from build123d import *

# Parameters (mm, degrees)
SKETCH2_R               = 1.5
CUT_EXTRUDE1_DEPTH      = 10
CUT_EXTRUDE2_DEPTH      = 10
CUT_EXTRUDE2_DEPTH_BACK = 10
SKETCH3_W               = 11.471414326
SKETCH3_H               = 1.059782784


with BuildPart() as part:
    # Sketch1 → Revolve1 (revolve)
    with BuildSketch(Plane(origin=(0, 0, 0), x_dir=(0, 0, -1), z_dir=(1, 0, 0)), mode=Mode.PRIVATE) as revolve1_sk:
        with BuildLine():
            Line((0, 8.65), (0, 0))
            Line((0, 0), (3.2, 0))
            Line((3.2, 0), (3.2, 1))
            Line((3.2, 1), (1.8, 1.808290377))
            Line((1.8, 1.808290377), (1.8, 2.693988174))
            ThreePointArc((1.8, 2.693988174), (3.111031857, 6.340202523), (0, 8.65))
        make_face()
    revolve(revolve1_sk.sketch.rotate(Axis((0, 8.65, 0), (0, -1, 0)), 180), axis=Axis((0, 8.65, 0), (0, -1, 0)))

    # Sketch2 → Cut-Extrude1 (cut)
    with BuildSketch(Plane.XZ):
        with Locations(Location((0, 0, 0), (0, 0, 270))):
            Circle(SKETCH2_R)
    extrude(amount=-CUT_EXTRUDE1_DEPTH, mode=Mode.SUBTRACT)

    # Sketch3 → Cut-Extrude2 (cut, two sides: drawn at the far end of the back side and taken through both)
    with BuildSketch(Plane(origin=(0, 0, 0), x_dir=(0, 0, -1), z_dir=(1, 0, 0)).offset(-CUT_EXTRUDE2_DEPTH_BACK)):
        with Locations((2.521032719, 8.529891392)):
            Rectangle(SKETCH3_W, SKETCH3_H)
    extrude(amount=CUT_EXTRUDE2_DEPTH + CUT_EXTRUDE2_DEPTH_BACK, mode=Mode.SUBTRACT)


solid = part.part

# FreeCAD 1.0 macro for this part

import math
import FreeCAD as App
import Part
import Sketcher
Q = App.Units.Quantity

doc = App.newDocument("Part")
params = doc.addObject("Spreadsheet::Sheet", "Params")
for row, (alias, value) in enumerate([
    ("sketch1_width", "1 mm"),
    ("sketch1_radius", "3.25 mm"),
    ("sketch1_height", "3.2 mm"),
    ("sketch1_width2", "8.65 mm"),
    ("revolution_angle", "360 deg"),
    ("sketch2_diameter", "3 mm"),
    ("pocket1_length", "10 mm"),
], start=1):
    params.set(f"A{row}", alias)
    params.set(f"B{row}", "=" + value)
    params.setAlias(f"B{row}", alias)

body = doc.addObject("PartDesign::Body", "Body")

# Sketch on YZ plane
sketch1 = body.newObject("Sketcher::SketchObject", "Sketch")
sketch1.AttachmentSupport = (doc.getObject("YZ_Plane"), [""])
sketch1.MapMode = "FlatFace"
sketch1.addGeometry([
    Part.LineSegment(App.Vector(8.7, 0, 0), App.Vector(0, 0, 0)),  # 0
    Part.LineSegment(App.Vector(0, 0, 0), App.Vector(0, -3.2, 0)),  # 1
    Part.LineSegment(App.Vector(0, -3.2, 0), App.Vector(1, -3.2, 0)),  # 2
    Part.LineSegment(App.Vector(1, -3.2, 0), App.Vector(1.8, -1.8, 0)),  # 3
    Part.LineSegment(App.Vector(1.8, -1.8, 0), App.Vector(2.7, -1.8, 0)),  # 4
    Part.ArcOfCircle(Part.Circle(App.Vector(5.4, 0, 0), App.Vector(0, 0, 1), 3.2), math.radians(-146), math.radians(0)),  # 5
], False)
sketch1.addConstraint([
    Sketcher.Constraint("Coincident", 0, 2, 1, 1),
    Sketcher.Constraint("Coincident", 1, 2, 2, 1),
    Sketcher.Constraint("Coincident", 2, 2, 3, 1),
    Sketcher.Constraint("Coincident", 3, 2, 4, 1),
    Sketcher.Constraint("Coincident", 4, 2, 5, 1),
    Sketcher.Constraint("Coincident", 5, 2, 0, 1),
    Sketcher.Constraint("Horizontal", 0),
    Sketcher.Constraint("Vertical", 1),
    Sketcher.Constraint("Horizontal", 2),
    Sketcher.Constraint("Horizontal", 4),
    Sketcher.Constraint("Coincident", 0, 2, -1, 1),
    Sketcher.Constraint("PointOnObject", 5, 3, -1),
    Sketcher.Constraint("DistanceX", 2, 1, 2, 2, 1.0),
    Sketcher.Constraint("Angle", 3, Q("60 deg")),
    Sketcher.Constraint("Radius", 5, 3.25),
    Sketcher.Constraint("DistanceY", 1, 2, 1, 1, 3.2),
    Sketcher.Constraint("DistanceX", 0, 2, 0, 1, 8.65),
    Sketcher.Constraint("DistanceY", 3, 2, -1, 1, 1.8),
])
sketch1.setExpression("Constraints[12]", "Params.sketch1_width")
sketch1.setExpression("Constraints[14]", "Params.sketch1_radius")
sketch1.setExpression("Constraints[15]", "Params.sketch1_height")
sketch1.setExpression("Constraints[16]", "Params.sketch1_width2")
revolution = body.newObject("PartDesign::Revolution", "Revolution")
revolution.Profile = sketch1
revolution.ReferenceAxis = (sketch1, ["H_Axis"])
revolution.setExpression("Angle", "Params.revolution_angle")

# Sketch on XZ plane
sketch2 = body.newObject("Sketcher::SketchObject", "Sketch001")
sketch2.AttachmentSupport = (doc.getObject("XZ_Plane"), [""])
sketch2.MapMode = "FlatFace"
sketch2.addGeometry(Part.Circle(App.Vector(0, 0, 0), App.Vector(0, 0, 1), 1.5), False)
sketch2.addConstraint([
    Sketcher.Constraint("Coincident", 0, 3, -1, 1),
    Sketcher.Constraint("Diameter", 0, 3.0),
])
sketch2.setExpression("Constraints[1]", "Params.sketch2_diameter")
pocket1 = body.newObject("PartDesign::Pocket", "Pocket")
pocket1.Profile = sketch2
pocket1.setExpression("Length", "Params.pocket1_length")

# Sketch on YZ plane
sketch3 = body.newObject("Sketcher::SketchObject", "Sketch002")
sketch3.AttachmentSupport = (doc.getObject("YZ_Plane"), [""])
sketch3.MapMode = "FlatFace"
sketch3.addGeometry([
    Part.LineSegment(App.Vector(9.1, 3.2, 0), App.Vector(8, 3.2, 0)),
    Part.LineSegment(App.Vector(8, 3.2, 0), App.Vector(8, -8.3, 0)),
    Part.LineSegment(App.Vector(8, -8.3, 0), App.Vector(9.1, -8.3, 0)),
    Part.LineSegment(App.Vector(9.1, -8.3, 0), App.Vector(9.1, 3.2, 0)),
], False)
sketch3.addConstraint([
    Sketcher.Constraint("Coincident", 0, 2, 1, 1),
    Sketcher.Constraint("Coincident", 1, 2, 2, 1),
    Sketcher.Constraint("Coincident", 2, 2, 3, 1),
    Sketcher.Constraint("Coincident", 3, 2, 0, 1),
    Sketcher.Constraint("Horizontal", 0),
    Sketcher.Constraint("Vertical", 1),
    Sketcher.Constraint("Horizontal", 2),
    Sketcher.Constraint("Vertical", 3),
    Sketcher.Constraint("DistanceX", -1, 1, 0, 2, 8.0),
    Sketcher.Constraint("DistanceX", 0, 2, 0, 1, 1.059783),
    Sketcher.Constraint("DistanceY", 1, 2, 1, 1, 11.471414),
    Sketcher.Constraint("DistanceY", 1, 2, -1, 1, 8.25674),
])
pocket2 = body.newObject("PartDesign::Pocket", "Pocket001")
pocket2.Profile = sketch3
pocket2.Type = "ThroughAll"
pocket2.Midplane = True

doc.recompute()
